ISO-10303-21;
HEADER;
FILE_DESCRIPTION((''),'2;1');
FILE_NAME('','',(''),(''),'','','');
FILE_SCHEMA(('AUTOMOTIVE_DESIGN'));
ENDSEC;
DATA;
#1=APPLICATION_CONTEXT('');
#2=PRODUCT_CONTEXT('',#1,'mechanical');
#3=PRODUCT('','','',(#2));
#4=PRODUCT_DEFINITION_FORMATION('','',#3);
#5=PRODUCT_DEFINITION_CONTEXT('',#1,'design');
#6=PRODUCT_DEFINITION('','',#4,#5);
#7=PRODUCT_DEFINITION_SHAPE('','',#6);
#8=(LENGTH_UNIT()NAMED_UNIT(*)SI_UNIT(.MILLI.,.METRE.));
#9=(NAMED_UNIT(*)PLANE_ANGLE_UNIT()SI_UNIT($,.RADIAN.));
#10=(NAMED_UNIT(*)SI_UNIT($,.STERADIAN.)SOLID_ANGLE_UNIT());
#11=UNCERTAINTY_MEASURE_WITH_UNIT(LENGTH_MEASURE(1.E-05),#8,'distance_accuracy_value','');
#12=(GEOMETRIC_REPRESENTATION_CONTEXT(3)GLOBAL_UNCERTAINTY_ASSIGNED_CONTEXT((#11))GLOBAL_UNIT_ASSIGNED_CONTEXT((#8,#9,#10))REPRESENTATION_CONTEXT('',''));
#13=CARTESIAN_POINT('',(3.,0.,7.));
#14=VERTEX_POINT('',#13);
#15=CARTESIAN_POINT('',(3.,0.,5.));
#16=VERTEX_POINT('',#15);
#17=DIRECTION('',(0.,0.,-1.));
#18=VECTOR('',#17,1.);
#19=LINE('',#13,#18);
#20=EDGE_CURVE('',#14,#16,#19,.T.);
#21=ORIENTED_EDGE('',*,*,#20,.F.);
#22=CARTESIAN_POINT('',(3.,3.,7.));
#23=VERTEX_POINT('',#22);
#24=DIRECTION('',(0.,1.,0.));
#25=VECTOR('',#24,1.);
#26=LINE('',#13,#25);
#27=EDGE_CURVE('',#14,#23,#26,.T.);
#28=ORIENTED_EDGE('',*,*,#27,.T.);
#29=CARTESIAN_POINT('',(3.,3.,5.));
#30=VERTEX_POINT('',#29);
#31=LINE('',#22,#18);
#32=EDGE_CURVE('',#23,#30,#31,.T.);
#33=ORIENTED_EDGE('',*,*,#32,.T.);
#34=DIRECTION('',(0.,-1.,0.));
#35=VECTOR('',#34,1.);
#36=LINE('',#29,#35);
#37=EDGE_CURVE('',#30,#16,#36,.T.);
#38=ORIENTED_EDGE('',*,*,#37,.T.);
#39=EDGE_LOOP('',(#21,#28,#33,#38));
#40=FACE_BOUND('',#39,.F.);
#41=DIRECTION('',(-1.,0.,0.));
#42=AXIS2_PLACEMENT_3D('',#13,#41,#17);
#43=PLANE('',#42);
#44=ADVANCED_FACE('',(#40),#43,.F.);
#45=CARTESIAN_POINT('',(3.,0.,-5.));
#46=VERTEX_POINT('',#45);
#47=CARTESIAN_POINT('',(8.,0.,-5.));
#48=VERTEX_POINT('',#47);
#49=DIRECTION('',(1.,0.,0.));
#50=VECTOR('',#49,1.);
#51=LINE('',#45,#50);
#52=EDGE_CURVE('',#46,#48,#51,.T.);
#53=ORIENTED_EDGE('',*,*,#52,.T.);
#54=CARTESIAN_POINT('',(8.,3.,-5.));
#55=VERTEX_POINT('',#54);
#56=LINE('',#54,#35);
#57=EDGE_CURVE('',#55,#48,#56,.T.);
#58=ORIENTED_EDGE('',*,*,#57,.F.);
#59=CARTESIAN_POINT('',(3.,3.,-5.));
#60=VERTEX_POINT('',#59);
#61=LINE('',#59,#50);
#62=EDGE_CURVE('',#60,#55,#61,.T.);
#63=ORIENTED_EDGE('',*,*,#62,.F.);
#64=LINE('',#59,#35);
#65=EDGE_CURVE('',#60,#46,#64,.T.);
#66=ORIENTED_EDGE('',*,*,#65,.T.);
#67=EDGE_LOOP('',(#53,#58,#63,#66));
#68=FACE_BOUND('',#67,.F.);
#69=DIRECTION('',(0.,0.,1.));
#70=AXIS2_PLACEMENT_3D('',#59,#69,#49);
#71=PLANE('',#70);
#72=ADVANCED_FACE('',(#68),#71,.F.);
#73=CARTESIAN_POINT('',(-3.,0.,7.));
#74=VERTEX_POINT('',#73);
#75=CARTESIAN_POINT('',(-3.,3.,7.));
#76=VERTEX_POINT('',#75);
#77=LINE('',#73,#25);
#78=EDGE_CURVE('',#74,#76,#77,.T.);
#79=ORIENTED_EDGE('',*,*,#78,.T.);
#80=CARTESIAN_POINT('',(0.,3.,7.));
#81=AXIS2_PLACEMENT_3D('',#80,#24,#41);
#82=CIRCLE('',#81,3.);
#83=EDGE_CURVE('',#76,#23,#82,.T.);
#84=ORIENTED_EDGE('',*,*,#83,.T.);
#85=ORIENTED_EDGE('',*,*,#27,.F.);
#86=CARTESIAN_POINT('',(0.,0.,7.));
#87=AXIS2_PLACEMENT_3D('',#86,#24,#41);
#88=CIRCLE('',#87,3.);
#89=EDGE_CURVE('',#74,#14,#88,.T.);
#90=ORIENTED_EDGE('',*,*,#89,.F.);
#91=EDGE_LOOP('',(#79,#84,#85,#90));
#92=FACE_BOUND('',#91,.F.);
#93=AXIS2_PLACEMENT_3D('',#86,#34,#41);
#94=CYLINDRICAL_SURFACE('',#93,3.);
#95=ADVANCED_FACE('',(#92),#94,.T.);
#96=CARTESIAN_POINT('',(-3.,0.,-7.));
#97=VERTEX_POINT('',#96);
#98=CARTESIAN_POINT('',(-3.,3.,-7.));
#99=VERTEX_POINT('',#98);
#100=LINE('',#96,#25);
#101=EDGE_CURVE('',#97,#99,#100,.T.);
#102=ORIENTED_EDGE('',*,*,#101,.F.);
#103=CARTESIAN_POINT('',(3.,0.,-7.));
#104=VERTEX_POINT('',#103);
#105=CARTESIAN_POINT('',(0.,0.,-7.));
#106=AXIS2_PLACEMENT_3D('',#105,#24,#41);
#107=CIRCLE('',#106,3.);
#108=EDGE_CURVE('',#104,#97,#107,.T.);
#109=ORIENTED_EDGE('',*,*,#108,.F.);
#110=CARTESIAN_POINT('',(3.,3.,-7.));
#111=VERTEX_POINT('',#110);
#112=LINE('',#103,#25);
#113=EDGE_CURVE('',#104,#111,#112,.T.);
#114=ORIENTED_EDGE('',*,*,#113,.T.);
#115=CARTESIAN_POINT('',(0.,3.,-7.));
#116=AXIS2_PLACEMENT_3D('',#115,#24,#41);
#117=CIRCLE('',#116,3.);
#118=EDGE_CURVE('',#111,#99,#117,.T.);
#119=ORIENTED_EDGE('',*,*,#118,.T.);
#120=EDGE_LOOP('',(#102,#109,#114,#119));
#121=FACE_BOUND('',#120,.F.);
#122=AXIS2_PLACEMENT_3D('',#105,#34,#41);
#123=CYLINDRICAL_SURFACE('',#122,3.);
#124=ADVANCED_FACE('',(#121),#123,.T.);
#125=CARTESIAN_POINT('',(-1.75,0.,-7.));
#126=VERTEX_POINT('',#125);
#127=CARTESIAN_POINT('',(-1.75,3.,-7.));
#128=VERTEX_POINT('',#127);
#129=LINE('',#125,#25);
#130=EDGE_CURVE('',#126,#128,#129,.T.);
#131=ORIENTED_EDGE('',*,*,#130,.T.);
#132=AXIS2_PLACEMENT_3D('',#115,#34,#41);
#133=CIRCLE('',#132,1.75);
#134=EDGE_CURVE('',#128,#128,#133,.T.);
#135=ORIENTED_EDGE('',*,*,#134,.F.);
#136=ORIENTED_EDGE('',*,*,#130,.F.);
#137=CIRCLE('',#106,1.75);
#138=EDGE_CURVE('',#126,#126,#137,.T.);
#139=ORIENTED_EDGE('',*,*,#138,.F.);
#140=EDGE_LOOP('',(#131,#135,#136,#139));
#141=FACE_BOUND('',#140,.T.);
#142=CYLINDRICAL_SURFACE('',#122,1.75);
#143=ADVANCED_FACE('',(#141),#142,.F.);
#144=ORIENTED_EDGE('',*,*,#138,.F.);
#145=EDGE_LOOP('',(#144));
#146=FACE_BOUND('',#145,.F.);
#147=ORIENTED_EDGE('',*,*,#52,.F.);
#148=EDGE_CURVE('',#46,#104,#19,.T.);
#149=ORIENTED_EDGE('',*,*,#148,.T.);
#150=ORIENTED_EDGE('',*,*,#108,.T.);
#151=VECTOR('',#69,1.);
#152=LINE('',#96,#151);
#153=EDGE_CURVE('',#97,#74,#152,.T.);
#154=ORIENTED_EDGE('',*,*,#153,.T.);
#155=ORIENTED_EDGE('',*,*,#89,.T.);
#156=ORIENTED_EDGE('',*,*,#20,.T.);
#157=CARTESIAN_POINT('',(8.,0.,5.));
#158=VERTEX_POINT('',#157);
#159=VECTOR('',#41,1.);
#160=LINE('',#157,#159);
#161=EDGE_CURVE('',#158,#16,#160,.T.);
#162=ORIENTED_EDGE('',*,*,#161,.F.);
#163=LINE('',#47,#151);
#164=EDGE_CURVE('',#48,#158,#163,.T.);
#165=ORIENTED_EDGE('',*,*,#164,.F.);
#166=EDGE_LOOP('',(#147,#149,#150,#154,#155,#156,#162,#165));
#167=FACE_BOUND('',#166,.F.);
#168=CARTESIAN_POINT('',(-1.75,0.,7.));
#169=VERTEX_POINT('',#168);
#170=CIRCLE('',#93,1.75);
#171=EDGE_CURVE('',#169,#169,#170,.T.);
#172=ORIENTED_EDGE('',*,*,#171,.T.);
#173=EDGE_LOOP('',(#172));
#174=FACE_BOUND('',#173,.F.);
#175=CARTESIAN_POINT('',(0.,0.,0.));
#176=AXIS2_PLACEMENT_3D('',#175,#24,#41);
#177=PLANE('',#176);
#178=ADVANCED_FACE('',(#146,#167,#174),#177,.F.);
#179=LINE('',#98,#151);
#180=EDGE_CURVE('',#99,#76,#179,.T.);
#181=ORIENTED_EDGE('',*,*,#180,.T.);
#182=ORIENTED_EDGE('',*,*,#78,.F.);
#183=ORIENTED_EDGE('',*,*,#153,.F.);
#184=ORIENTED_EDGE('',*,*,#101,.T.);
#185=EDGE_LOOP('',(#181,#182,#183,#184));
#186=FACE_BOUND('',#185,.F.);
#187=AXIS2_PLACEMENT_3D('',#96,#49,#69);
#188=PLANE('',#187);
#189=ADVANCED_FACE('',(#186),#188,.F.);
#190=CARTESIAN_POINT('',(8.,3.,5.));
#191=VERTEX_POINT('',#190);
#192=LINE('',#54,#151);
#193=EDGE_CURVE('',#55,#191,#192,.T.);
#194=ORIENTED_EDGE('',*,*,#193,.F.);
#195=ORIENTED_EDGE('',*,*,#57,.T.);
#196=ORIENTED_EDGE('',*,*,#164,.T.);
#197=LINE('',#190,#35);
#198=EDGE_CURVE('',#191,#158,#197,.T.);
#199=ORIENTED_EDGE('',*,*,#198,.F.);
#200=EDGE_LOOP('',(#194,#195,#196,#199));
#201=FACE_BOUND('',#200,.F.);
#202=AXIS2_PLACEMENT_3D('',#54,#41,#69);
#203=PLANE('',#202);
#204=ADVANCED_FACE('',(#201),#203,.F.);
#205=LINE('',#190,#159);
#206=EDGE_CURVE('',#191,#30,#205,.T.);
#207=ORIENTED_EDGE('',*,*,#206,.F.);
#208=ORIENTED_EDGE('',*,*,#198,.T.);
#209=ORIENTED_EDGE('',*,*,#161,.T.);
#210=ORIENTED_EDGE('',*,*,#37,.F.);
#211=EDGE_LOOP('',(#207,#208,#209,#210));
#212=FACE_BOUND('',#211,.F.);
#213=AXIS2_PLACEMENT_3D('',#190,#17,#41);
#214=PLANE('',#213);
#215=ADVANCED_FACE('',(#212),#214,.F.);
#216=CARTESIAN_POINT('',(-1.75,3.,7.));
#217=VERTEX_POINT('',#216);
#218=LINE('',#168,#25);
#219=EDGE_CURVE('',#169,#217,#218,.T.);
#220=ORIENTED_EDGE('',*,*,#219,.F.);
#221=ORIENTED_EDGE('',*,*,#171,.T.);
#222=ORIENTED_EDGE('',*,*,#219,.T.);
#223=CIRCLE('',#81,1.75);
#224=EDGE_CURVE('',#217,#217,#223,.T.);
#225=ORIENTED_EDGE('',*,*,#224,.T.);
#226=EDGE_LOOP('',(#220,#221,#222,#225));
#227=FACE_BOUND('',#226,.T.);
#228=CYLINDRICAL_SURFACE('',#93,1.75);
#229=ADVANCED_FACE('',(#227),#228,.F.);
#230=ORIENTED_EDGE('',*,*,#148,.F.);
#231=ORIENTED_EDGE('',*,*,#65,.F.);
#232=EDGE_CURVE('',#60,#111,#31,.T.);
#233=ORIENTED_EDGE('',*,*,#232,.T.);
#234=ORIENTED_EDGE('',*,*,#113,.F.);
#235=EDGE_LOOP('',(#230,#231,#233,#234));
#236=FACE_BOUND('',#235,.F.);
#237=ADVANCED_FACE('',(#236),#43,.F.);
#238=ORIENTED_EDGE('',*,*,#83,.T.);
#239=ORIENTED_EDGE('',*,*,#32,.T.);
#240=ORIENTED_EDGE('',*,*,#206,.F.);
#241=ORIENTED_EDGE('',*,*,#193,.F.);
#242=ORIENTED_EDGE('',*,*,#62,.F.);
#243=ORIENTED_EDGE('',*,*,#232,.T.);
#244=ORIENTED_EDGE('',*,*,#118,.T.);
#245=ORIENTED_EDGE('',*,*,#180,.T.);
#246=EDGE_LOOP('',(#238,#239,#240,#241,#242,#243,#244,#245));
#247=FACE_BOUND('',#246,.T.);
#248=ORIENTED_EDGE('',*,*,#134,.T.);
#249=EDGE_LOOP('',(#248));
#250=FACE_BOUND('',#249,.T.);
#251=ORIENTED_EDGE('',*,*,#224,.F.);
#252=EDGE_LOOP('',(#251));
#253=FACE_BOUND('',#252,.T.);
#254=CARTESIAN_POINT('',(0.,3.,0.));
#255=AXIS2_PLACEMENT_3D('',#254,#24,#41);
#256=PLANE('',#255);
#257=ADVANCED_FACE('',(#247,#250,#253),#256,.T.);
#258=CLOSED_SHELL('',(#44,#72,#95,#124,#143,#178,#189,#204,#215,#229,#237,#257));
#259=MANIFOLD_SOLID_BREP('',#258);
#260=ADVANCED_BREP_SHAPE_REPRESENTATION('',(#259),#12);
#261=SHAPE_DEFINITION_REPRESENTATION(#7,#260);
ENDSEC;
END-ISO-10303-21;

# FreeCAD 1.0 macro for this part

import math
import FreeCAD as App
import Part
import Sketcher
from FreeCAD import Vector
Q = App.Units.Quantity

doc = App.newDocument("Part")
body = doc.addObject("PartDesign::Body", "Body")

sketch1 = body.newObject("Sketcher::SketchObject", "Sketch")
sketch1.AttachmentSupport = (doc.getObject("XZ_Plane"), [""])
sketch1.MapMode = "FlatFace"
sketch1.addGeometry(Part.ArcOfCircle(Part.Circle(Vector(0, 7, 0), Vector(0, 0, 1), 3), math.radians(0), math.radians(180)), False)
sketch1.addGeometry(Part.LineSegment(Vector(3, 7, 0), Vector(3, -7, 0)), False)
sketch1.addGeometry(Part.ArcOfCircle(Part.Circle(Vector(0, -7, 0), Vector(0, 0, 1), 3), math.radians(180), math.radians(360)), False)
sketch1.addGeometry(Part.LineSegment(Vector(-3, -7, 0), Vector(-3, 7, 0)), False)
sketch1.addGeometry(Part.Circle(Vector(0, 7, 0), Vector(0, 0, 1), 1.8), False)
sketch1.addGeometry(Part.Circle(Vector(0, -7, 0), Vector(0, 0, 1), 1.8), False)
sketch1.addConstraint(Sketcher.Constraint("Tangent", 0, 1, 1, 1))
sketch1.addConstraint(Sketcher.Constraint("Tangent", 1, 2, 2, 2))
sketch1.addConstraint(Sketcher.Constraint("Tangent", 2, 1, 3, 1))
sketch1.addConstraint(Sketcher.Constraint("Tangent", 3, 2, 0, 2))
sketch1.addConstraint(Sketcher.Constraint("Vertical", 1))
sketch1.addConstraint(Sketcher.Constraint("Vertical", 3))
sketch1.addConstraint(Sketcher.Constraint("Coincident", 4, 3, 0, 3))
sketch1.addConstraint(Sketcher.Constraint("Coincident", 5, 3, 2, 3))
sketch1.addConstraint(Sketcher.Constraint("Equal", 4, 5))
sketch1.addConstraint(Sketcher.Constraint("Symmetric", 0, 3, 2, 3, -1, 1))
sketch1.addConstraint(Sketcher.Constraint("Radius", 0, Q("3 mm")))
sketch1.addConstraint(Sketcher.Constraint("Diameter", 4, Q("3.5 mm")))
sketch1.addConstraint(Sketcher.Constraint("DistanceY", 1, 2, 1, 1, Q("14 mm")))
pad1 = body.newObject("PartDesign::Pad", "Pad")
pad1.Profile = sketch1
pad1.Length = 3
pad1.Reversed = True

sketch2 = body.newObject("Sketcher::SketchObject", "Sketch001")
sketch2.AttachmentSupport = (doc.getObject("XZ_Plane"), [""])
sketch2.MapMode = "FlatFace"
sketch2.AttachmentOffset = App.Placement(Vector(0, 0, -3), App.Rotation())
sketch2.addGeometry(Part.LineSegment(Vector(3, -5, 0), Vector(3, 5, 0)), False)
sketch2.addGeometry(Part.LineSegment(Vector(3, 5, 0), Vector(8, 5, 0)), False)
sketch2.addGeometry(Part.LineSegment(Vector(8, 5, 0), Vector(8, -5, 0)), False)
sketch2.addGeometry(Part.LineSegment(Vector(8, -5, 0), Vector(3, -5, 0)), False)
sketch2.addConstraint(Sketcher.Constraint("Coincident", 0, 2, 1, 1))
sketch2.addConstraint(Sketcher.Constraint("Coincident", 1, 2, 2, 1))
sketch2.addConstraint(Sketcher.Constraint("Coincident", 2, 2, 3, 1))
sketch2.addConstraint(Sketcher.Constraint("Coincident", 3, 2, 0, 1))
sketch2.addConstraint(Sketcher.Constraint("Vertical", 0))
sketch2.addConstraint(Sketcher.Constraint("Horizontal", 1))
sketch2.addConstraint(Sketcher.Constraint("Vertical", 2))
sketch2.addConstraint(Sketcher.Constraint("Horizontal", 3))
sketch2.addConstraint(Sketcher.Constraint("DistanceX", 1, 1, 1, 2, Q("5 mm")))
sketch2.addConstraint(Sketcher.Constraint("DistanceY", -1, 1, 0, 2, Q("5 mm")))
sketch2.addConstraint(Sketcher.Constraint("DistanceY", 2, 2, -1, 1, Q("5 mm")))
sketch2.addConstraint(Sketcher.Constraint("DistanceX", -1, 1, 0, 2, Q("3 mm")))
pad2 = body.newObject("PartDesign::Pad", "Pad001")
pad2.Profile = sketch2
pad2.Length = 3

doc.recompute()
